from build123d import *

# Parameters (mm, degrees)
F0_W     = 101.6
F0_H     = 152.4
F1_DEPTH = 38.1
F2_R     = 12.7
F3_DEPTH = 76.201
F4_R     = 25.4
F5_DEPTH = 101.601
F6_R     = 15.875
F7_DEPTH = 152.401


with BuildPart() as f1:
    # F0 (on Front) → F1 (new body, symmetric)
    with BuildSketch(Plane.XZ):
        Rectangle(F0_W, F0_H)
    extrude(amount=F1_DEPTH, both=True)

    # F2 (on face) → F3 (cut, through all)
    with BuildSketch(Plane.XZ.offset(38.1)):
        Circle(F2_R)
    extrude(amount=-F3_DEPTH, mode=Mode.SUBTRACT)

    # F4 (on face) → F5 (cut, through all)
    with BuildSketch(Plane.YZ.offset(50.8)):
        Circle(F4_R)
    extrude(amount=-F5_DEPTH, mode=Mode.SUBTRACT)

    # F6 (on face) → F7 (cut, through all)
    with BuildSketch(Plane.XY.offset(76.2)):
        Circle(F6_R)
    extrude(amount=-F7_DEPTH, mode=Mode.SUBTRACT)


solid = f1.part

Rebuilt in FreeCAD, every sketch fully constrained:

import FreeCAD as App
import Part
import Sketcher
from FreeCAD import Vector
Q = App.Units.Quantity

doc = App.newDocument("Part")
body = doc.addObject("PartDesign::Body", "Body")

sketch1 = body.newObject("Sketcher::SketchObject", "Sketch")
sketch1.AttachmentSupport = (doc.getObject("XZ_Plane"), [""])
sketch1.MapMode = "FlatFace"
sketch1.addGeometry(Part.LineSegment(Vector(-51, 76, 0), Vector(-51, -76, 0)), False)
sketch1.addGeometry(Part.LineSegment(Vector(-51, -76, 0), Vector(51, -76, 0)), False)
sketch1.addGeometry(Part.LineSegment(Vector(51, -76, 0), Vector(51, 76, 0)), False)
sketch1.addGeometry(Part.LineSegment(Vector(51, 76, 0), Vector(-51, 76, 0)), False)
sketch1.addConstraint(Sketcher.Constraint("Coincident", 0, 2, 1, 1))
sketch1.addConstraint(Sketcher.Constraint("Coincident", 1, 2, 2, 1))
sketch1.addConstraint(Sketcher.Constraint("Coincident", 2, 2, 3, 1))
sketch1.addConstraint(Sketcher.Constraint("Coincident", 3, 2, 0, 1))
sketch1.addConstraint(Sketcher.Constraint("Vertical", 0))
sketch1.addConstraint(Sketcher.Constraint("Horizontal", 1))
sketch1.addConstraint(Sketcher.Constraint("Vertical", 2))
sketch1.addConstraint(Sketcher.Constraint("Horizontal", 3))
sketch1.addConstraint(Sketcher.Constraint("Symmetric", 0, 2, 2, 2, -1, 1))
sketch1.addConstraint(Sketcher.Constraint("DistanceX", 1, 1, 1, 2, Q("4 in")))
sketch1.addConstraint(Sketcher.Constraint("DistanceY", 0, 2, 0, 1, Q("6 in")))
pad1 = body.newObject("PartDesign::Pad", "Pad")
pad1.Profile = sketch1
pad1.Length = Q("3 in")
pad1.Midplane = True

sketch2 = body.newObject("Sketcher::SketchObject", "Sketch001")
sketch2.AttachmentSupport = (doc.getObject("XZ_Plane"), [""])
sketch2.MapMode = "FlatFace"
sketch2.AttachmentOffset = App.Placement(Vector(0, 0, 1.5 * 25.4), App.Rotation())
sketch2.addGeometry(Part.Circle(Vector(0, 0, 0), Vector(0, 0, 1), 13), False)
sketch2.addConstraint(Sketcher.Constraint("Coincident", 0, 3, -1, 1))
sketch2.addConstraint(Sketcher.Constraint("Diameter", 0, Q("1 in")))
pocket1 = body.newObject("PartDesign::Pocket", "Pocket")
pocket1.Profile = sketch2
pocket1.Type = "ThroughAll"

sketch3 = body.newObject("Sketcher::SketchObject", "Sketch002")
sketch3.AttachmentSupport = (doc.getObject("YZ_Plane"), [""])
sketch3.MapMode = "FlatFace"
sketch3.AttachmentOffset = App.Placement(Vector(0, 0, 2 * 25.4), App.Rotation())
sketch3.addGeometry(Part.Circle(Vector(0, 0, 0), Vector(0, 0, 1), 25), False)
sketch3.addConstraint(Sketcher.Constraint("Coincident", 0, 3, -1, 1))
sketch3.addConstraint(Sketcher.Constraint("Diameter", 0, Q("2 in")))
pocket2 = body.newObject("PartDesign::Pocket", "Pocket001")
pocket2.Profile = sketch3
pocket2.Type = "ThroughAll"

sketch4 = body.newObject("Sketcher::SketchObject", "Sketch003")
sketch4.AttachmentSupport = (doc.getObject("XY_Plane"), [""])
sketch4.MapMode = "FlatFace"
sketch4.AttachmentOffset = App.Placement(Vector(0, 0, 3 * 25.4), App.Rotation())
sketch4.addGeometry(Part.Circle(Vector(0, 0, 0), Vector(0, 0, 1), 16), False)
sketch4.addConstraint(Sketcher.Constraint("Coincident", 0, 3, -1, 1))
sketch4.addConstraint(Sketcher.Constraint("Diameter", 0, Q("1.25 in")))
pocket3 = body.newObject("PartDesign::Pocket", "Pocket002")
pocket3.Profile = sketch4
pocket3.Type = "ThroughAll"

doc.recompute()
